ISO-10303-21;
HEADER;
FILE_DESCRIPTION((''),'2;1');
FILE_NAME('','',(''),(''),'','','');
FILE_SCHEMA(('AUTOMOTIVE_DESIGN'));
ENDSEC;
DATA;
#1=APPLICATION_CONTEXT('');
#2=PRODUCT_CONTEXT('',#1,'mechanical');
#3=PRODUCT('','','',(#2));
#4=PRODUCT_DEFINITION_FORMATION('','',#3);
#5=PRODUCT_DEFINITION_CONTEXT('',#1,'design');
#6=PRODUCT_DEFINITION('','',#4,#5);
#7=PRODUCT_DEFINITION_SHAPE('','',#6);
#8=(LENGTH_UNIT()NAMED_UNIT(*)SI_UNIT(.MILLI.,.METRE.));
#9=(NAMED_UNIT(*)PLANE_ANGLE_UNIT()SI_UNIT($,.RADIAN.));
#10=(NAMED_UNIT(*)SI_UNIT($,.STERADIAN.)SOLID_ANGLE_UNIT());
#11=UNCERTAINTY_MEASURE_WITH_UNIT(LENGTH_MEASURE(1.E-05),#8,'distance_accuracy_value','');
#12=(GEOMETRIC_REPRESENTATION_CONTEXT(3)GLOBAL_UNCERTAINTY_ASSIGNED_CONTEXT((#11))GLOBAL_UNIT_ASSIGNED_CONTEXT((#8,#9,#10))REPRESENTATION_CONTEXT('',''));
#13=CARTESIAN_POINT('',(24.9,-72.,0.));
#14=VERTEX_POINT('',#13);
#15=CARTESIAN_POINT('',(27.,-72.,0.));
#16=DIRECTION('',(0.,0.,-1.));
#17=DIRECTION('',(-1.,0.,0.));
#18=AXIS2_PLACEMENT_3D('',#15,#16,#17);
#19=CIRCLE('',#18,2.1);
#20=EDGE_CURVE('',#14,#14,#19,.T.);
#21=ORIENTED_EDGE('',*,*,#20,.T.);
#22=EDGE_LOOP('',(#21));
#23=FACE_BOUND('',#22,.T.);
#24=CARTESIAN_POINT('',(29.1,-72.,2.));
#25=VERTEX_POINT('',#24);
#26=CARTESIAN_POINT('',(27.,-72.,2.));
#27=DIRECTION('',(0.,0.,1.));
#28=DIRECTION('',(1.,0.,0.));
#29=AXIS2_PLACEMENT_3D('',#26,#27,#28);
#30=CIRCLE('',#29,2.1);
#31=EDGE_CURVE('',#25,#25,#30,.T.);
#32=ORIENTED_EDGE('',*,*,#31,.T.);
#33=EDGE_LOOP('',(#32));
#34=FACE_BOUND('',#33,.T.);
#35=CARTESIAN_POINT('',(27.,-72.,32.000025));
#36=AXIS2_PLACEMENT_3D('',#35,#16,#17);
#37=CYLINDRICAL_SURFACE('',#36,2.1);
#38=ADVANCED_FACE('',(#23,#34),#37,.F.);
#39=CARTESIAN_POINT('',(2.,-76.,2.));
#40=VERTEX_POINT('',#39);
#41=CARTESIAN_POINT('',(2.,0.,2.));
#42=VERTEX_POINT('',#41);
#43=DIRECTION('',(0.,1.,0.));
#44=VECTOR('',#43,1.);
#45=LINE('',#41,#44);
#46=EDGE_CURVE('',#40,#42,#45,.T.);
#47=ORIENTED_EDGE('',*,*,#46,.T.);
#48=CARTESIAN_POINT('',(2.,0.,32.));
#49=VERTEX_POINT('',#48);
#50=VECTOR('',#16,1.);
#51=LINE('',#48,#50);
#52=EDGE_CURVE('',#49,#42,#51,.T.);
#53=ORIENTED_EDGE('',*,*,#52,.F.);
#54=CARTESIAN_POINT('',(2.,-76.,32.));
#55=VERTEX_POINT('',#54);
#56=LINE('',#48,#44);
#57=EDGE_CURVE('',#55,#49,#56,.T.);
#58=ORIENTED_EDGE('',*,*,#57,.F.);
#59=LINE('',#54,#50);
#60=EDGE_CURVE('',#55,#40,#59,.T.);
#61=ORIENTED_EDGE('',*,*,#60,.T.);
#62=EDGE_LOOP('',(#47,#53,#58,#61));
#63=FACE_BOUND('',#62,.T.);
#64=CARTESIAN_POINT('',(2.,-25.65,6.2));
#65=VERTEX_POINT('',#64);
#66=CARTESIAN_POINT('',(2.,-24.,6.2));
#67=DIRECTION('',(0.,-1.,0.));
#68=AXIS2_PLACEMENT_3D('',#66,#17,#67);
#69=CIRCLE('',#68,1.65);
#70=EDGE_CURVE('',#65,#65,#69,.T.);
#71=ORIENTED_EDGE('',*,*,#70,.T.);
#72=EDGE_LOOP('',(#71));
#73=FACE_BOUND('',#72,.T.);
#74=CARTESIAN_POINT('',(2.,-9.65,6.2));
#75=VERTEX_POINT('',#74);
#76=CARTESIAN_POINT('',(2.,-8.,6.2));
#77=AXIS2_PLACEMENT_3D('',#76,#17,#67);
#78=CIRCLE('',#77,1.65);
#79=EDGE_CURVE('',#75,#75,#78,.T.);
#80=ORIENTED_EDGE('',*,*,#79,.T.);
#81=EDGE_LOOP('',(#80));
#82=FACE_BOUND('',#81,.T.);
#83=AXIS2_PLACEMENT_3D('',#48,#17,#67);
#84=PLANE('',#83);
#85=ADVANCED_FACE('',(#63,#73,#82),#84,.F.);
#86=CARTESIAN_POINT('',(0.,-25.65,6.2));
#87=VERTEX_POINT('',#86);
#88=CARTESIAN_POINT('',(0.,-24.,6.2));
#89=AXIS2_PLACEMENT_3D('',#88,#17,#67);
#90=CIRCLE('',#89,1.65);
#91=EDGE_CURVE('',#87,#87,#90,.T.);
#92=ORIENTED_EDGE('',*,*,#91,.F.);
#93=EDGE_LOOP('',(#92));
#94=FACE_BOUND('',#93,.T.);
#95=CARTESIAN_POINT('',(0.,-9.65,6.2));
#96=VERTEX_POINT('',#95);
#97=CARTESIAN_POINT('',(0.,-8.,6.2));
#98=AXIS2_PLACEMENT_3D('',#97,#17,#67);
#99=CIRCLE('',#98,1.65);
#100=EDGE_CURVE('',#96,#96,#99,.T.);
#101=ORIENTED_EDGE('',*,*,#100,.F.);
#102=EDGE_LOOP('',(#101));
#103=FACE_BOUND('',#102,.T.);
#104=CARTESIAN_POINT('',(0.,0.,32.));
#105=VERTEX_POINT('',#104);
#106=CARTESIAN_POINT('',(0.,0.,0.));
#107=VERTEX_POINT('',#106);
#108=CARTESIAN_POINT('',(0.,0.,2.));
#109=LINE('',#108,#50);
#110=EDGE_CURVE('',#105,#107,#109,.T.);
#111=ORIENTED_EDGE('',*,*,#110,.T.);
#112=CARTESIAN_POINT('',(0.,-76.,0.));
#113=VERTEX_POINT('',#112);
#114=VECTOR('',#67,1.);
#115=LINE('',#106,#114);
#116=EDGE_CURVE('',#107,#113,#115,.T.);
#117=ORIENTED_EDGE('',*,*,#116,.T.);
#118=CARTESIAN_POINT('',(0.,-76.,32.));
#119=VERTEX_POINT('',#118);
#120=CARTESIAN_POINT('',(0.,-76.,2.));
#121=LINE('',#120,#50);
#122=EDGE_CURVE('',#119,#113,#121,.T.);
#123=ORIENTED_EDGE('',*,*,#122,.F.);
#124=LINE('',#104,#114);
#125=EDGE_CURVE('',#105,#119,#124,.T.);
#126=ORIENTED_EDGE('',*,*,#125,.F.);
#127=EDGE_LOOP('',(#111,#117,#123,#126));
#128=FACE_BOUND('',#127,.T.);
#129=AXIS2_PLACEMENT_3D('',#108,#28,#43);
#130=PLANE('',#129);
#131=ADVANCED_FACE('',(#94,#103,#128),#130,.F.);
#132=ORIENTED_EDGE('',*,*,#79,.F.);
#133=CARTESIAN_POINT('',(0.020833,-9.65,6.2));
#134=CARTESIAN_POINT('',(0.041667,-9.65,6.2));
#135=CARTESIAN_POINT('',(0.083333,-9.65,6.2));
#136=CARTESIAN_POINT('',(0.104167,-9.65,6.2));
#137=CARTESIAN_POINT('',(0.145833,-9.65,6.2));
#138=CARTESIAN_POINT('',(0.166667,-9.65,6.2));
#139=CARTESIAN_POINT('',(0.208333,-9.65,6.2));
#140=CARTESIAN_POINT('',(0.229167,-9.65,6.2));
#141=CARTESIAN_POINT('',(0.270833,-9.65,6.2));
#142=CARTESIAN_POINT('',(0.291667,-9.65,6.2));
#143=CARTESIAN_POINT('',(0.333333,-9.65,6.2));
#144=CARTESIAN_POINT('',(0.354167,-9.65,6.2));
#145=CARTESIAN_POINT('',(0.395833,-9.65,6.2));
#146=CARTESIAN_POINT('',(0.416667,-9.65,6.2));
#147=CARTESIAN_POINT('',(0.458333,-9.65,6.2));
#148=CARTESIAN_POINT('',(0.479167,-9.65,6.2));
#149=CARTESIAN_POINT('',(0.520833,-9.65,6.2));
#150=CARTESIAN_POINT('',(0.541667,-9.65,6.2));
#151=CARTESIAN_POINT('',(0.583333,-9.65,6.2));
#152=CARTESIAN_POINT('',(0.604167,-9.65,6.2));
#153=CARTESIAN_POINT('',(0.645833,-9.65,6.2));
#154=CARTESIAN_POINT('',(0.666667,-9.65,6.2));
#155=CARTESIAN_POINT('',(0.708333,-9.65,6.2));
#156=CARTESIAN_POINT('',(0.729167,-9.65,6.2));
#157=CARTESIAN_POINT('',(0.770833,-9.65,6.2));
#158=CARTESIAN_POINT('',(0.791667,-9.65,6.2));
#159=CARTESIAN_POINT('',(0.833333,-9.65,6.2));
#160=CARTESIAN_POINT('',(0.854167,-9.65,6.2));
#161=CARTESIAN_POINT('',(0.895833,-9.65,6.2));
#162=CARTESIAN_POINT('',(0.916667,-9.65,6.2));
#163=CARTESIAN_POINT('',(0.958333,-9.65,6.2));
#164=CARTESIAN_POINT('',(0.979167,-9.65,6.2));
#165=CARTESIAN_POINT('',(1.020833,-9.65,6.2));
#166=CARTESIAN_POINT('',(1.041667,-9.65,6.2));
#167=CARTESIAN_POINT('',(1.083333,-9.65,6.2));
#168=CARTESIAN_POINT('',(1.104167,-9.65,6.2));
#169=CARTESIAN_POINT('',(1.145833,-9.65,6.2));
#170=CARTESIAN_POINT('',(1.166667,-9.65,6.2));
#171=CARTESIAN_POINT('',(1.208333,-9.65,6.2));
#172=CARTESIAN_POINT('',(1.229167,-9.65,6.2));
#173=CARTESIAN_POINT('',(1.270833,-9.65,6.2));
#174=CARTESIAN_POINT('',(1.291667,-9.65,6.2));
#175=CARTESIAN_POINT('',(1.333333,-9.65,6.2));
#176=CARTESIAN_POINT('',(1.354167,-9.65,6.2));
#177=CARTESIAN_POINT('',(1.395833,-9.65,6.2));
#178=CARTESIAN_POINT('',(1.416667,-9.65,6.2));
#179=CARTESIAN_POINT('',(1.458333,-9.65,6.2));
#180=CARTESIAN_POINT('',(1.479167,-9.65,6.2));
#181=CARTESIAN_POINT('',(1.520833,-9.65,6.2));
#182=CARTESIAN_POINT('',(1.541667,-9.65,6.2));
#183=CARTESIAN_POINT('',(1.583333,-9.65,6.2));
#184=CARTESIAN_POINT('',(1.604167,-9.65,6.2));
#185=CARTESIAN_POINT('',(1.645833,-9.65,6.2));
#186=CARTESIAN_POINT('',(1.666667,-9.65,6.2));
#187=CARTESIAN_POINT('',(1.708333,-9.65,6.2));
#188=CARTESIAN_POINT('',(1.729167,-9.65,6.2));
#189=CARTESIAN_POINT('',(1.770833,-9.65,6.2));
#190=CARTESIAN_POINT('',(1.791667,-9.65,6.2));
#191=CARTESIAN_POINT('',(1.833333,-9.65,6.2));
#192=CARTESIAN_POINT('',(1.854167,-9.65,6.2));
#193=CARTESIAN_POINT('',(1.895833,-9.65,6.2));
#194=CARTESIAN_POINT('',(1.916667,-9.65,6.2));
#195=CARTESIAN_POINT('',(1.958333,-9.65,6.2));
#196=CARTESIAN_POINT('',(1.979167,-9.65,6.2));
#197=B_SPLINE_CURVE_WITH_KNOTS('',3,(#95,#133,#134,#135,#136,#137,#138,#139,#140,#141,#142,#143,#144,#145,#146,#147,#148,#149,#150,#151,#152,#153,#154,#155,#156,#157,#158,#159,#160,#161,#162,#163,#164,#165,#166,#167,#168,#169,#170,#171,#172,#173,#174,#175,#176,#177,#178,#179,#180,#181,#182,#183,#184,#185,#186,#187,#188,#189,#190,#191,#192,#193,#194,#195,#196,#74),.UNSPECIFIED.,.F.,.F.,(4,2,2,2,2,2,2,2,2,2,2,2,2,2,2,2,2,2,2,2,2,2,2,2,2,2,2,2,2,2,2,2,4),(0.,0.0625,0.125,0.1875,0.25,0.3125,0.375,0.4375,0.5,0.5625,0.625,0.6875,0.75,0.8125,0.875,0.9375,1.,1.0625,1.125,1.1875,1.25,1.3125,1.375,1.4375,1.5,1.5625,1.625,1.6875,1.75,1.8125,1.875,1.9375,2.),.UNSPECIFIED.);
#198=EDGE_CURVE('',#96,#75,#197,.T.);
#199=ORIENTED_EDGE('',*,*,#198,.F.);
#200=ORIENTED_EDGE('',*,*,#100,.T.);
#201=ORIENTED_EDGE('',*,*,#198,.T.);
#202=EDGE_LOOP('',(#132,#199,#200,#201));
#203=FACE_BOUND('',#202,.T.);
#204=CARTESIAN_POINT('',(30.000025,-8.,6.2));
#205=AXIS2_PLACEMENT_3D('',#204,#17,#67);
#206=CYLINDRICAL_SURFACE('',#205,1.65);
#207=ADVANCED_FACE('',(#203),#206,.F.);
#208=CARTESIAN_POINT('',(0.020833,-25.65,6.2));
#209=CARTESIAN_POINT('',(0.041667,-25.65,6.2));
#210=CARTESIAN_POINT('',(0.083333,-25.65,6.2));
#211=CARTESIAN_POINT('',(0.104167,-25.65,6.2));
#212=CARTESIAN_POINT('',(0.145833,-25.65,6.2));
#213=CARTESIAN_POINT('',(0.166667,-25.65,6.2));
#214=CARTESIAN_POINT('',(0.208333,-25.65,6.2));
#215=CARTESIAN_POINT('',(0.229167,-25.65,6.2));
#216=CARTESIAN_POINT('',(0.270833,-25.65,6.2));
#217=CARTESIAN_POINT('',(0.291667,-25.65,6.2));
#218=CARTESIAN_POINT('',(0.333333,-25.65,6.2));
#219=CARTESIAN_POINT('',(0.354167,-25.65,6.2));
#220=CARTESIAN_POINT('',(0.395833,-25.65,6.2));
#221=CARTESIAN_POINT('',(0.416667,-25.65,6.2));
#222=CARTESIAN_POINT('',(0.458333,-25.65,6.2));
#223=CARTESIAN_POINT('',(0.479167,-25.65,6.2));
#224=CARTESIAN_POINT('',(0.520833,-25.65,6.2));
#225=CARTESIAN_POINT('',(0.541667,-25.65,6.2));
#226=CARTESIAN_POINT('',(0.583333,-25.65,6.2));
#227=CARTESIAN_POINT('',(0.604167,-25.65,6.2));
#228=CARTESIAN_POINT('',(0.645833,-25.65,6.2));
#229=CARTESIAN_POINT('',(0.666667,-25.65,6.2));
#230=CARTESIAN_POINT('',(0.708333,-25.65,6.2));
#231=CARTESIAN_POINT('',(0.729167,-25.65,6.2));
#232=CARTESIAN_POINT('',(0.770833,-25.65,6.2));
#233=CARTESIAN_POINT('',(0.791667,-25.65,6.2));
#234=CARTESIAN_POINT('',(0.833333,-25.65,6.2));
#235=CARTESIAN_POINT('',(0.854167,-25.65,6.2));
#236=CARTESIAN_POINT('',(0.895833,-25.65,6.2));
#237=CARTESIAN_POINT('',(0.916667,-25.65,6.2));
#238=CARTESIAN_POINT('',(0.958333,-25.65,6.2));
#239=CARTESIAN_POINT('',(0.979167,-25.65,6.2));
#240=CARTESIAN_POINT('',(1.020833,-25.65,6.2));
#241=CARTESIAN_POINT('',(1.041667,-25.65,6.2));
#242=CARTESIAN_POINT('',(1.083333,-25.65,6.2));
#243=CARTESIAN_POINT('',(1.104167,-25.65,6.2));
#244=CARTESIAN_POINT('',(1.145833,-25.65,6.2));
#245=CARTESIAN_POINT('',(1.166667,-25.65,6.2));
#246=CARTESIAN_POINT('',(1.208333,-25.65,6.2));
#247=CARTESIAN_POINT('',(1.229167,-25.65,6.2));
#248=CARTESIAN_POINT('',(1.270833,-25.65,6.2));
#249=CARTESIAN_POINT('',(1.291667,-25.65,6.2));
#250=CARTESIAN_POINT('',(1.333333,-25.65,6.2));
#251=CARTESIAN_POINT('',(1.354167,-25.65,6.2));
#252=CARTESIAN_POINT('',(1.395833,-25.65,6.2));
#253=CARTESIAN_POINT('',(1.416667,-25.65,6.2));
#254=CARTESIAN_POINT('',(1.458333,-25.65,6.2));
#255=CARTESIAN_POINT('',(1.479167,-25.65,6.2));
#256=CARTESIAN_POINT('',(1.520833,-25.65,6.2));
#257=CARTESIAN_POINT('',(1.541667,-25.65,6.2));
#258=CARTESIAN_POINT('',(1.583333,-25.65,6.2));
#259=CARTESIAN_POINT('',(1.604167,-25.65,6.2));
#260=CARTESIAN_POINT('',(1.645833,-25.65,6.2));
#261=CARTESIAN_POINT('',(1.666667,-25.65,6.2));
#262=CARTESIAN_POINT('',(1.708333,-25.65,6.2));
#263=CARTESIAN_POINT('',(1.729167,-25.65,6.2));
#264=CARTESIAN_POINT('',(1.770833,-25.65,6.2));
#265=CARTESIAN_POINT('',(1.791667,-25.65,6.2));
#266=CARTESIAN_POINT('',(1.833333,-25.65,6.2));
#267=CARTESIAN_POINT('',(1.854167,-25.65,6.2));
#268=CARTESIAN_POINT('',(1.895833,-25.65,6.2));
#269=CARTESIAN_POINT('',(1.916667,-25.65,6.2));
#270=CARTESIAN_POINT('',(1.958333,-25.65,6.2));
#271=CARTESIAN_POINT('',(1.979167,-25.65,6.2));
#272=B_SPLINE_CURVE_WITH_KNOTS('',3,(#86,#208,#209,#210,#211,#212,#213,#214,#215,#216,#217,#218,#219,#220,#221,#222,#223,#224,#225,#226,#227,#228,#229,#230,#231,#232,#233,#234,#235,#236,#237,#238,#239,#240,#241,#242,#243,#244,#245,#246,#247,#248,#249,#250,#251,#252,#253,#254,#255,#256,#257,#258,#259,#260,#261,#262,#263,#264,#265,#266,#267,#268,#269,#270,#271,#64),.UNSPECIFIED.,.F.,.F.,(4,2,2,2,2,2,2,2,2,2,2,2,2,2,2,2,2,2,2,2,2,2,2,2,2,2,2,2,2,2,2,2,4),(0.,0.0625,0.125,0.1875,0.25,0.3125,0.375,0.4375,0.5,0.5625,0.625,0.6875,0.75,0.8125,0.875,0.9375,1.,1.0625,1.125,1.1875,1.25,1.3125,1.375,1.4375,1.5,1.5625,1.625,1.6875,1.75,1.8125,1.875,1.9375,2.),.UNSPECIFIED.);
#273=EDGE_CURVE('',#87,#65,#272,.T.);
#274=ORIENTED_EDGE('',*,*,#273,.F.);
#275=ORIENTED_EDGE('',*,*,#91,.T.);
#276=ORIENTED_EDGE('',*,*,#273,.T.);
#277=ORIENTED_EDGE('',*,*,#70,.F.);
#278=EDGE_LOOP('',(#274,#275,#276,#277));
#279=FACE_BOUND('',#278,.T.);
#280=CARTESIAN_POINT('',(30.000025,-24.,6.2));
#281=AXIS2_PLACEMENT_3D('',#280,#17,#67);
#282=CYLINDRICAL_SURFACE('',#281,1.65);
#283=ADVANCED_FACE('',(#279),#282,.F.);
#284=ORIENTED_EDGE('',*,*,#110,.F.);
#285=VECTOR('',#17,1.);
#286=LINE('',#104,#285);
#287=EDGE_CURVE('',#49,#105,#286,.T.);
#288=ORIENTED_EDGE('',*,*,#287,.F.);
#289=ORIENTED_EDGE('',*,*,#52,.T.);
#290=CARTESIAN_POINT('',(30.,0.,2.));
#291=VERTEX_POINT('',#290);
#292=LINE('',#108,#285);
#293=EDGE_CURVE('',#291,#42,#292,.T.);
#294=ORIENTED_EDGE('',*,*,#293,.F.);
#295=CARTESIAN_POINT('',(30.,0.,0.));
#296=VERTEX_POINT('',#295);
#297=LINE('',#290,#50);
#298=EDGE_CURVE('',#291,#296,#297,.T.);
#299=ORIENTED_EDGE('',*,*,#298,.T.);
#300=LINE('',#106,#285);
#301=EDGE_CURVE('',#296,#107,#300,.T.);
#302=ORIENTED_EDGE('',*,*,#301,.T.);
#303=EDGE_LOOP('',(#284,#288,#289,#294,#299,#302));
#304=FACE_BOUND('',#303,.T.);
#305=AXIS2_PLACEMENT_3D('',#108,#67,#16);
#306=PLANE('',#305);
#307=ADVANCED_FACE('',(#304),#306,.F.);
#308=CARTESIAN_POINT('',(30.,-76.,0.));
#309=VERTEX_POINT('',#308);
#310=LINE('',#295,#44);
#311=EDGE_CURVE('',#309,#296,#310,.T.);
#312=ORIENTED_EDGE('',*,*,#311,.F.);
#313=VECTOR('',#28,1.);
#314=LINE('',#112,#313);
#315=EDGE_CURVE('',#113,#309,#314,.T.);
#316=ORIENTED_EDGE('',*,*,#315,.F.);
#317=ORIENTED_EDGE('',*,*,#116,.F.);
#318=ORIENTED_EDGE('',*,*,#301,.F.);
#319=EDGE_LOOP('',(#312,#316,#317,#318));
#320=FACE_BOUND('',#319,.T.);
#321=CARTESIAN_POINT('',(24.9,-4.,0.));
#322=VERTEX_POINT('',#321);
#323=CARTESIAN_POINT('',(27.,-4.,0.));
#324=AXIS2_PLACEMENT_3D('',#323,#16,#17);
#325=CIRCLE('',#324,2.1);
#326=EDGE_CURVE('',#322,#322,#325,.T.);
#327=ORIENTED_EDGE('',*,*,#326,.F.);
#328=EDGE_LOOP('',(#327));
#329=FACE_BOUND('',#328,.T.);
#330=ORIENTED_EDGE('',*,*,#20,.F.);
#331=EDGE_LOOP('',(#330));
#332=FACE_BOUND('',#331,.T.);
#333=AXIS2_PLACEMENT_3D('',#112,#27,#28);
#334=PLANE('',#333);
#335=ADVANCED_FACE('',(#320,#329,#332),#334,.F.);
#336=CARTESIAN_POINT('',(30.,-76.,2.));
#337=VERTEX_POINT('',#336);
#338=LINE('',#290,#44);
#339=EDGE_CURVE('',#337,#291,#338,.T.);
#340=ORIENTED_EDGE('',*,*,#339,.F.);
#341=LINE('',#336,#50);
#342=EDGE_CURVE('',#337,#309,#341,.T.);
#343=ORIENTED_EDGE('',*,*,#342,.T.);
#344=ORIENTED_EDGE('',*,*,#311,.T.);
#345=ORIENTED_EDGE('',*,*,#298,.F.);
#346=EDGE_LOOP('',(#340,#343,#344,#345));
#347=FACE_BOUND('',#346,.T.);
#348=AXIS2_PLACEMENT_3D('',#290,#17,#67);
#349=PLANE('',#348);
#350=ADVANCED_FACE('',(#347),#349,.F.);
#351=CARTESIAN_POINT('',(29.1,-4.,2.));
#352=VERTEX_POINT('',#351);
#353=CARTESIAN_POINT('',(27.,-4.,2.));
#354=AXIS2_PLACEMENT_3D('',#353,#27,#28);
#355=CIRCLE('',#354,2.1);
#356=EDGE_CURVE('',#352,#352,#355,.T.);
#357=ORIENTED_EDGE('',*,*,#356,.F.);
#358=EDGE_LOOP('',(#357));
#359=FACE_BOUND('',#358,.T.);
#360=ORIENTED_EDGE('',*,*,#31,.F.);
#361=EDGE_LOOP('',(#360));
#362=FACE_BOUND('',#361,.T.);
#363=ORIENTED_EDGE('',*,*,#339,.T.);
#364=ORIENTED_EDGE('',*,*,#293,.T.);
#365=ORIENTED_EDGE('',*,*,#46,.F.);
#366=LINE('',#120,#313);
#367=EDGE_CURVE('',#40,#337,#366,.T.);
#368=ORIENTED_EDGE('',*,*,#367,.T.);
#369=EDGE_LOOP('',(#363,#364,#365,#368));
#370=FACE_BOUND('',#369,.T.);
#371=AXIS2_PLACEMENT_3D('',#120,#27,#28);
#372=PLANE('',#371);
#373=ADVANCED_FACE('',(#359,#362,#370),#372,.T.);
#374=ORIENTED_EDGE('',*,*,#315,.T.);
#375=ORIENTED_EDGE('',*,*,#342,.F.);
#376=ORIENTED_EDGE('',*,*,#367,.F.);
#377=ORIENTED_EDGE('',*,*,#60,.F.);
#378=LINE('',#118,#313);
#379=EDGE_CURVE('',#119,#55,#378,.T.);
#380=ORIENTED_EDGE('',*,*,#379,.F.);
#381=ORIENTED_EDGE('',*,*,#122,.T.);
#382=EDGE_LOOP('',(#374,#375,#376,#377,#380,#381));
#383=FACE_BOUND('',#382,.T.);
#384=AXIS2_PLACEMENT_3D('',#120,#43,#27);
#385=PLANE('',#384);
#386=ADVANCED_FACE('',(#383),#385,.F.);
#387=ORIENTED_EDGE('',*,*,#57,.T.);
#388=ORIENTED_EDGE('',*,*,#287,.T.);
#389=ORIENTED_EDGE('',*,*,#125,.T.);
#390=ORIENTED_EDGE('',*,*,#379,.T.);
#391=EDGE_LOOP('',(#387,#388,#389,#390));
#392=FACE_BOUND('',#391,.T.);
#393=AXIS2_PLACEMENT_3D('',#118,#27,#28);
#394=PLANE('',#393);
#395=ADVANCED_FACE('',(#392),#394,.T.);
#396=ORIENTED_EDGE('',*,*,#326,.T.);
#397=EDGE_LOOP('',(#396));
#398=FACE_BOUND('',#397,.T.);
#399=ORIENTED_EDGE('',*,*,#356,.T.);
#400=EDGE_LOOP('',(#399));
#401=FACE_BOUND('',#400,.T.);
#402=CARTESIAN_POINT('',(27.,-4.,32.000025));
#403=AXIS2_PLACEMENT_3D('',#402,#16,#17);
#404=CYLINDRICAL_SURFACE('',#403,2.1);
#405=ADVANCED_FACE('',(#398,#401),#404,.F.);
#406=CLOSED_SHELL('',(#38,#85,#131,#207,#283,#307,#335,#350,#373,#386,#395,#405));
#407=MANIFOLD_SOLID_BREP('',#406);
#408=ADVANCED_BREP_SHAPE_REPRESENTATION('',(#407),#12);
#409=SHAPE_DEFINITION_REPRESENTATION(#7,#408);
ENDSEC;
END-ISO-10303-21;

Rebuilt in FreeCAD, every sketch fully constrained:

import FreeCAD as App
import Part
import Sketcher

V = App.Vector
Q = App.Units.Quantity

doc = App.newDocument("Part")
body = doc.addObject("PartDesign::Body", "Body")

sketch1 = body.newObject("Sketcher::SketchObject", "Sketch")
sketch1.AttachmentSupport = (doc.getObject("XY_Plane"), [""])
sketch1.MapMode = "FlatFace"
sketch1.addGeometry(Part.LineSegment(V(0, 0, 0), V(0, -76, 0)), False)
sketch1.addGeometry(Part.LineSegment(V(0, -76, 0), V(30, -76, 0)), False)
sketch1.addGeometry(Part.LineSegment(V(30, -76, 0), V(30, 0, 0)), False)
sketch1.addGeometry(Part.LineSegment(V(30, 0, 0), V(0, 0, 0)), False)
sketch1.addConstraint(Sketcher.Constraint("Coincident", 0, 2, 1, 1))
sketch1.addConstraint(Sketcher.Constraint("Coincident", 1, 2, 2, 1))
sketch1.addConstraint(Sketcher.Constraint("Coincident", 2, 2, 3, 1))
sketch1.addConstraint(Sketcher.Constraint("Coincident", 3, 2, 0, 1))
sketch1.addConstraint(Sketcher.Constraint("Vertical", 0))
sketch1.addConstraint(Sketcher.Constraint("Horizontal", 1))
sketch1.addConstraint(Sketcher.Constraint("Vertical", 2))
sketch1.addConstraint(Sketcher.Constraint("Horizontal", 3))
sketch1.addConstraint(Sketcher.Constraint("Coincident", 3, 2, -1, 1))
sketch1.addConstraint(Sketcher.Constraint("DistanceX", 1, 1, 1, 2, Q("30 mm")))
sketch1.addConstraint(Sketcher.Constraint("DistanceY", 0, 2, 0, 1, Q("76 mm")))
pad1 = body.newObject("PartDesign::Pad", "Pad")
pad1.Profile = sketch1
pad1.Length = 2

sketch2 = body.newObject("Sketcher::SketchObject", "Sketch001")
sketch2.AttachmentSupport = (doc.getObject("XY_Plane"), [""])
sketch2.MapMode = "FlatFace"
sketch2.AttachmentOffset = App.Placement(V(0, 0, 2), App.Rotation())
sketch2.addGeometry(Part.LineSegment(V(0, 0, 0), V(0, -76, 0)), False)
sketch2.addGeometry(Part.LineSegment(V(0, -76, 0), V(2, -76, 0)), False)
sketch2.addGeometry(Part.LineSegment(V(2, -76, 0), V(2, 0, 0)), False)
sketch2.addGeometry(Part.LineSegment(V(2, 0, 0), V(0, 0, 0)), False)
sketch2.addConstraint(Sketcher.Constraint("Coincident", 0, 2, 1, 1))
sketch2.addConstraint(Sketcher.Constraint("Coincident", 1, 2, 2, 1))
sketch2.addConstraint(Sketcher.Constraint("Coincident", 2, 2, 3, 1))
sketch2.addConstraint(Sketcher.Constraint("Coincident", 3, 2, 0, 1))
sketch2.addConstraint(Sketcher.Constraint("Vertical", 0))
sketch2.addConstraint(Sketcher.Constraint("Horizontal", 1))
sketch2.addConstraint(Sketcher.Constraint("Vertical", 2))
sketch2.addConstraint(Sketcher.Constraint("Horizontal", 3))
sketch2.addConstraint(Sketcher.Constraint("Coincident", 3, 2, -1, 1))
sketch2.addConstraint(Sketcher.Constraint("DistanceX", 1, 1, 1, 2, Q("2 mm")))
sketch2.addConstraint(Sketcher.Constraint("DistanceY", 0, 2, 0, 1, Q("76 mm")))
pad2 = body.newObject("PartDesign::Pad", "Pad001")
pad2.Profile = sketch2
pad2.Length = 30

sketch3 = body.newObject("Sketcher::SketchObject", "Sketch002")
sketch3.AttachmentSupport = (doc.getObject("XY_Plane"), [""])
sketch3.MapMode = "FlatFace"
sketch3.addGeometry(Part.Circle(V(27, -4, 0), V(0, 0, 1), 2.1), False)
sketch3.addGeometry(Part.Circle(V(27, -72, 0), V(0, 0, 1), 2.1), False)
sketch3.addConstraint(Sketcher.Constraint("Equal", 0, 1))
sketch3.addConstraint(Sketcher.Constraint("Vertical", 0, 3, 1, 3))
sketch3.addConstraint(Sketcher.Constraint("Diameter", 0, Q("4.2 mm")))
sketch3.addConstraint(Sketcher.Constraint("DistanceX", -1, 1, 0, 3, Q("27 mm")))
sketch3.addConstraint(Sketcher.Constraint("DistanceY", 0, 3, -1, 1, Q("4 mm")))
sketch3.addConstraint(Sketcher.Constraint("DistanceY", 1, 3, -1, 1, Q("72 mm")))
pocket1 = body.newObject("PartDesign::Pocket", "Pocket")
pocket1.Profile = sketch3
pocket1.Type = "ThroughAll"
pocket1.Reversed = True

sketch4 = body.newObject("Sketcher::SketchObject", "Sketch003")
sketch4.AttachmentSupport = (doc.getObject("YZ_Plane"), [""])
sketch4.MapMode = "FlatFace"
sketch4.addGeometry(Part.Circle(V(-8, 6.2, 0), V(0, 0, 1), 1.65), False)
sketch4.addGeometry(Part.Circle(V(-24, 6.2, 0), V(0, 0, 1), 1.65), False)
sketch4.addConstraint(Sketcher.Constraint("Equal", 0, 1))
sketch4.addConstraint(Sketcher.Constraint("Horizontal", 0, 3, 1, 3))
sketch4.addConstraint(Sketcher.Constraint("Diameter", 0, Q("3.3 mm")))
sketch4.addConstraint(Sketcher.Constraint("DistanceX", 0, 3, -1, 1, Q("8 mm")))
sketch4.addConstraint(Sketcher.Constraint("DistanceX", 1, 3, -1, 1, Q("24 mm")))
sketch4.addConstraint(Sketcher.Constraint("DistanceY", -1, 1, 0, 3, Q("6.2 mm")))
pocket2 = body.newObject("PartDesign::Pocket", "Pocket001")
pocket2.Profile = sketch4
pocket2.Type = "ThroughAll"
pocket2.Reversed = True

doc.recompute()
